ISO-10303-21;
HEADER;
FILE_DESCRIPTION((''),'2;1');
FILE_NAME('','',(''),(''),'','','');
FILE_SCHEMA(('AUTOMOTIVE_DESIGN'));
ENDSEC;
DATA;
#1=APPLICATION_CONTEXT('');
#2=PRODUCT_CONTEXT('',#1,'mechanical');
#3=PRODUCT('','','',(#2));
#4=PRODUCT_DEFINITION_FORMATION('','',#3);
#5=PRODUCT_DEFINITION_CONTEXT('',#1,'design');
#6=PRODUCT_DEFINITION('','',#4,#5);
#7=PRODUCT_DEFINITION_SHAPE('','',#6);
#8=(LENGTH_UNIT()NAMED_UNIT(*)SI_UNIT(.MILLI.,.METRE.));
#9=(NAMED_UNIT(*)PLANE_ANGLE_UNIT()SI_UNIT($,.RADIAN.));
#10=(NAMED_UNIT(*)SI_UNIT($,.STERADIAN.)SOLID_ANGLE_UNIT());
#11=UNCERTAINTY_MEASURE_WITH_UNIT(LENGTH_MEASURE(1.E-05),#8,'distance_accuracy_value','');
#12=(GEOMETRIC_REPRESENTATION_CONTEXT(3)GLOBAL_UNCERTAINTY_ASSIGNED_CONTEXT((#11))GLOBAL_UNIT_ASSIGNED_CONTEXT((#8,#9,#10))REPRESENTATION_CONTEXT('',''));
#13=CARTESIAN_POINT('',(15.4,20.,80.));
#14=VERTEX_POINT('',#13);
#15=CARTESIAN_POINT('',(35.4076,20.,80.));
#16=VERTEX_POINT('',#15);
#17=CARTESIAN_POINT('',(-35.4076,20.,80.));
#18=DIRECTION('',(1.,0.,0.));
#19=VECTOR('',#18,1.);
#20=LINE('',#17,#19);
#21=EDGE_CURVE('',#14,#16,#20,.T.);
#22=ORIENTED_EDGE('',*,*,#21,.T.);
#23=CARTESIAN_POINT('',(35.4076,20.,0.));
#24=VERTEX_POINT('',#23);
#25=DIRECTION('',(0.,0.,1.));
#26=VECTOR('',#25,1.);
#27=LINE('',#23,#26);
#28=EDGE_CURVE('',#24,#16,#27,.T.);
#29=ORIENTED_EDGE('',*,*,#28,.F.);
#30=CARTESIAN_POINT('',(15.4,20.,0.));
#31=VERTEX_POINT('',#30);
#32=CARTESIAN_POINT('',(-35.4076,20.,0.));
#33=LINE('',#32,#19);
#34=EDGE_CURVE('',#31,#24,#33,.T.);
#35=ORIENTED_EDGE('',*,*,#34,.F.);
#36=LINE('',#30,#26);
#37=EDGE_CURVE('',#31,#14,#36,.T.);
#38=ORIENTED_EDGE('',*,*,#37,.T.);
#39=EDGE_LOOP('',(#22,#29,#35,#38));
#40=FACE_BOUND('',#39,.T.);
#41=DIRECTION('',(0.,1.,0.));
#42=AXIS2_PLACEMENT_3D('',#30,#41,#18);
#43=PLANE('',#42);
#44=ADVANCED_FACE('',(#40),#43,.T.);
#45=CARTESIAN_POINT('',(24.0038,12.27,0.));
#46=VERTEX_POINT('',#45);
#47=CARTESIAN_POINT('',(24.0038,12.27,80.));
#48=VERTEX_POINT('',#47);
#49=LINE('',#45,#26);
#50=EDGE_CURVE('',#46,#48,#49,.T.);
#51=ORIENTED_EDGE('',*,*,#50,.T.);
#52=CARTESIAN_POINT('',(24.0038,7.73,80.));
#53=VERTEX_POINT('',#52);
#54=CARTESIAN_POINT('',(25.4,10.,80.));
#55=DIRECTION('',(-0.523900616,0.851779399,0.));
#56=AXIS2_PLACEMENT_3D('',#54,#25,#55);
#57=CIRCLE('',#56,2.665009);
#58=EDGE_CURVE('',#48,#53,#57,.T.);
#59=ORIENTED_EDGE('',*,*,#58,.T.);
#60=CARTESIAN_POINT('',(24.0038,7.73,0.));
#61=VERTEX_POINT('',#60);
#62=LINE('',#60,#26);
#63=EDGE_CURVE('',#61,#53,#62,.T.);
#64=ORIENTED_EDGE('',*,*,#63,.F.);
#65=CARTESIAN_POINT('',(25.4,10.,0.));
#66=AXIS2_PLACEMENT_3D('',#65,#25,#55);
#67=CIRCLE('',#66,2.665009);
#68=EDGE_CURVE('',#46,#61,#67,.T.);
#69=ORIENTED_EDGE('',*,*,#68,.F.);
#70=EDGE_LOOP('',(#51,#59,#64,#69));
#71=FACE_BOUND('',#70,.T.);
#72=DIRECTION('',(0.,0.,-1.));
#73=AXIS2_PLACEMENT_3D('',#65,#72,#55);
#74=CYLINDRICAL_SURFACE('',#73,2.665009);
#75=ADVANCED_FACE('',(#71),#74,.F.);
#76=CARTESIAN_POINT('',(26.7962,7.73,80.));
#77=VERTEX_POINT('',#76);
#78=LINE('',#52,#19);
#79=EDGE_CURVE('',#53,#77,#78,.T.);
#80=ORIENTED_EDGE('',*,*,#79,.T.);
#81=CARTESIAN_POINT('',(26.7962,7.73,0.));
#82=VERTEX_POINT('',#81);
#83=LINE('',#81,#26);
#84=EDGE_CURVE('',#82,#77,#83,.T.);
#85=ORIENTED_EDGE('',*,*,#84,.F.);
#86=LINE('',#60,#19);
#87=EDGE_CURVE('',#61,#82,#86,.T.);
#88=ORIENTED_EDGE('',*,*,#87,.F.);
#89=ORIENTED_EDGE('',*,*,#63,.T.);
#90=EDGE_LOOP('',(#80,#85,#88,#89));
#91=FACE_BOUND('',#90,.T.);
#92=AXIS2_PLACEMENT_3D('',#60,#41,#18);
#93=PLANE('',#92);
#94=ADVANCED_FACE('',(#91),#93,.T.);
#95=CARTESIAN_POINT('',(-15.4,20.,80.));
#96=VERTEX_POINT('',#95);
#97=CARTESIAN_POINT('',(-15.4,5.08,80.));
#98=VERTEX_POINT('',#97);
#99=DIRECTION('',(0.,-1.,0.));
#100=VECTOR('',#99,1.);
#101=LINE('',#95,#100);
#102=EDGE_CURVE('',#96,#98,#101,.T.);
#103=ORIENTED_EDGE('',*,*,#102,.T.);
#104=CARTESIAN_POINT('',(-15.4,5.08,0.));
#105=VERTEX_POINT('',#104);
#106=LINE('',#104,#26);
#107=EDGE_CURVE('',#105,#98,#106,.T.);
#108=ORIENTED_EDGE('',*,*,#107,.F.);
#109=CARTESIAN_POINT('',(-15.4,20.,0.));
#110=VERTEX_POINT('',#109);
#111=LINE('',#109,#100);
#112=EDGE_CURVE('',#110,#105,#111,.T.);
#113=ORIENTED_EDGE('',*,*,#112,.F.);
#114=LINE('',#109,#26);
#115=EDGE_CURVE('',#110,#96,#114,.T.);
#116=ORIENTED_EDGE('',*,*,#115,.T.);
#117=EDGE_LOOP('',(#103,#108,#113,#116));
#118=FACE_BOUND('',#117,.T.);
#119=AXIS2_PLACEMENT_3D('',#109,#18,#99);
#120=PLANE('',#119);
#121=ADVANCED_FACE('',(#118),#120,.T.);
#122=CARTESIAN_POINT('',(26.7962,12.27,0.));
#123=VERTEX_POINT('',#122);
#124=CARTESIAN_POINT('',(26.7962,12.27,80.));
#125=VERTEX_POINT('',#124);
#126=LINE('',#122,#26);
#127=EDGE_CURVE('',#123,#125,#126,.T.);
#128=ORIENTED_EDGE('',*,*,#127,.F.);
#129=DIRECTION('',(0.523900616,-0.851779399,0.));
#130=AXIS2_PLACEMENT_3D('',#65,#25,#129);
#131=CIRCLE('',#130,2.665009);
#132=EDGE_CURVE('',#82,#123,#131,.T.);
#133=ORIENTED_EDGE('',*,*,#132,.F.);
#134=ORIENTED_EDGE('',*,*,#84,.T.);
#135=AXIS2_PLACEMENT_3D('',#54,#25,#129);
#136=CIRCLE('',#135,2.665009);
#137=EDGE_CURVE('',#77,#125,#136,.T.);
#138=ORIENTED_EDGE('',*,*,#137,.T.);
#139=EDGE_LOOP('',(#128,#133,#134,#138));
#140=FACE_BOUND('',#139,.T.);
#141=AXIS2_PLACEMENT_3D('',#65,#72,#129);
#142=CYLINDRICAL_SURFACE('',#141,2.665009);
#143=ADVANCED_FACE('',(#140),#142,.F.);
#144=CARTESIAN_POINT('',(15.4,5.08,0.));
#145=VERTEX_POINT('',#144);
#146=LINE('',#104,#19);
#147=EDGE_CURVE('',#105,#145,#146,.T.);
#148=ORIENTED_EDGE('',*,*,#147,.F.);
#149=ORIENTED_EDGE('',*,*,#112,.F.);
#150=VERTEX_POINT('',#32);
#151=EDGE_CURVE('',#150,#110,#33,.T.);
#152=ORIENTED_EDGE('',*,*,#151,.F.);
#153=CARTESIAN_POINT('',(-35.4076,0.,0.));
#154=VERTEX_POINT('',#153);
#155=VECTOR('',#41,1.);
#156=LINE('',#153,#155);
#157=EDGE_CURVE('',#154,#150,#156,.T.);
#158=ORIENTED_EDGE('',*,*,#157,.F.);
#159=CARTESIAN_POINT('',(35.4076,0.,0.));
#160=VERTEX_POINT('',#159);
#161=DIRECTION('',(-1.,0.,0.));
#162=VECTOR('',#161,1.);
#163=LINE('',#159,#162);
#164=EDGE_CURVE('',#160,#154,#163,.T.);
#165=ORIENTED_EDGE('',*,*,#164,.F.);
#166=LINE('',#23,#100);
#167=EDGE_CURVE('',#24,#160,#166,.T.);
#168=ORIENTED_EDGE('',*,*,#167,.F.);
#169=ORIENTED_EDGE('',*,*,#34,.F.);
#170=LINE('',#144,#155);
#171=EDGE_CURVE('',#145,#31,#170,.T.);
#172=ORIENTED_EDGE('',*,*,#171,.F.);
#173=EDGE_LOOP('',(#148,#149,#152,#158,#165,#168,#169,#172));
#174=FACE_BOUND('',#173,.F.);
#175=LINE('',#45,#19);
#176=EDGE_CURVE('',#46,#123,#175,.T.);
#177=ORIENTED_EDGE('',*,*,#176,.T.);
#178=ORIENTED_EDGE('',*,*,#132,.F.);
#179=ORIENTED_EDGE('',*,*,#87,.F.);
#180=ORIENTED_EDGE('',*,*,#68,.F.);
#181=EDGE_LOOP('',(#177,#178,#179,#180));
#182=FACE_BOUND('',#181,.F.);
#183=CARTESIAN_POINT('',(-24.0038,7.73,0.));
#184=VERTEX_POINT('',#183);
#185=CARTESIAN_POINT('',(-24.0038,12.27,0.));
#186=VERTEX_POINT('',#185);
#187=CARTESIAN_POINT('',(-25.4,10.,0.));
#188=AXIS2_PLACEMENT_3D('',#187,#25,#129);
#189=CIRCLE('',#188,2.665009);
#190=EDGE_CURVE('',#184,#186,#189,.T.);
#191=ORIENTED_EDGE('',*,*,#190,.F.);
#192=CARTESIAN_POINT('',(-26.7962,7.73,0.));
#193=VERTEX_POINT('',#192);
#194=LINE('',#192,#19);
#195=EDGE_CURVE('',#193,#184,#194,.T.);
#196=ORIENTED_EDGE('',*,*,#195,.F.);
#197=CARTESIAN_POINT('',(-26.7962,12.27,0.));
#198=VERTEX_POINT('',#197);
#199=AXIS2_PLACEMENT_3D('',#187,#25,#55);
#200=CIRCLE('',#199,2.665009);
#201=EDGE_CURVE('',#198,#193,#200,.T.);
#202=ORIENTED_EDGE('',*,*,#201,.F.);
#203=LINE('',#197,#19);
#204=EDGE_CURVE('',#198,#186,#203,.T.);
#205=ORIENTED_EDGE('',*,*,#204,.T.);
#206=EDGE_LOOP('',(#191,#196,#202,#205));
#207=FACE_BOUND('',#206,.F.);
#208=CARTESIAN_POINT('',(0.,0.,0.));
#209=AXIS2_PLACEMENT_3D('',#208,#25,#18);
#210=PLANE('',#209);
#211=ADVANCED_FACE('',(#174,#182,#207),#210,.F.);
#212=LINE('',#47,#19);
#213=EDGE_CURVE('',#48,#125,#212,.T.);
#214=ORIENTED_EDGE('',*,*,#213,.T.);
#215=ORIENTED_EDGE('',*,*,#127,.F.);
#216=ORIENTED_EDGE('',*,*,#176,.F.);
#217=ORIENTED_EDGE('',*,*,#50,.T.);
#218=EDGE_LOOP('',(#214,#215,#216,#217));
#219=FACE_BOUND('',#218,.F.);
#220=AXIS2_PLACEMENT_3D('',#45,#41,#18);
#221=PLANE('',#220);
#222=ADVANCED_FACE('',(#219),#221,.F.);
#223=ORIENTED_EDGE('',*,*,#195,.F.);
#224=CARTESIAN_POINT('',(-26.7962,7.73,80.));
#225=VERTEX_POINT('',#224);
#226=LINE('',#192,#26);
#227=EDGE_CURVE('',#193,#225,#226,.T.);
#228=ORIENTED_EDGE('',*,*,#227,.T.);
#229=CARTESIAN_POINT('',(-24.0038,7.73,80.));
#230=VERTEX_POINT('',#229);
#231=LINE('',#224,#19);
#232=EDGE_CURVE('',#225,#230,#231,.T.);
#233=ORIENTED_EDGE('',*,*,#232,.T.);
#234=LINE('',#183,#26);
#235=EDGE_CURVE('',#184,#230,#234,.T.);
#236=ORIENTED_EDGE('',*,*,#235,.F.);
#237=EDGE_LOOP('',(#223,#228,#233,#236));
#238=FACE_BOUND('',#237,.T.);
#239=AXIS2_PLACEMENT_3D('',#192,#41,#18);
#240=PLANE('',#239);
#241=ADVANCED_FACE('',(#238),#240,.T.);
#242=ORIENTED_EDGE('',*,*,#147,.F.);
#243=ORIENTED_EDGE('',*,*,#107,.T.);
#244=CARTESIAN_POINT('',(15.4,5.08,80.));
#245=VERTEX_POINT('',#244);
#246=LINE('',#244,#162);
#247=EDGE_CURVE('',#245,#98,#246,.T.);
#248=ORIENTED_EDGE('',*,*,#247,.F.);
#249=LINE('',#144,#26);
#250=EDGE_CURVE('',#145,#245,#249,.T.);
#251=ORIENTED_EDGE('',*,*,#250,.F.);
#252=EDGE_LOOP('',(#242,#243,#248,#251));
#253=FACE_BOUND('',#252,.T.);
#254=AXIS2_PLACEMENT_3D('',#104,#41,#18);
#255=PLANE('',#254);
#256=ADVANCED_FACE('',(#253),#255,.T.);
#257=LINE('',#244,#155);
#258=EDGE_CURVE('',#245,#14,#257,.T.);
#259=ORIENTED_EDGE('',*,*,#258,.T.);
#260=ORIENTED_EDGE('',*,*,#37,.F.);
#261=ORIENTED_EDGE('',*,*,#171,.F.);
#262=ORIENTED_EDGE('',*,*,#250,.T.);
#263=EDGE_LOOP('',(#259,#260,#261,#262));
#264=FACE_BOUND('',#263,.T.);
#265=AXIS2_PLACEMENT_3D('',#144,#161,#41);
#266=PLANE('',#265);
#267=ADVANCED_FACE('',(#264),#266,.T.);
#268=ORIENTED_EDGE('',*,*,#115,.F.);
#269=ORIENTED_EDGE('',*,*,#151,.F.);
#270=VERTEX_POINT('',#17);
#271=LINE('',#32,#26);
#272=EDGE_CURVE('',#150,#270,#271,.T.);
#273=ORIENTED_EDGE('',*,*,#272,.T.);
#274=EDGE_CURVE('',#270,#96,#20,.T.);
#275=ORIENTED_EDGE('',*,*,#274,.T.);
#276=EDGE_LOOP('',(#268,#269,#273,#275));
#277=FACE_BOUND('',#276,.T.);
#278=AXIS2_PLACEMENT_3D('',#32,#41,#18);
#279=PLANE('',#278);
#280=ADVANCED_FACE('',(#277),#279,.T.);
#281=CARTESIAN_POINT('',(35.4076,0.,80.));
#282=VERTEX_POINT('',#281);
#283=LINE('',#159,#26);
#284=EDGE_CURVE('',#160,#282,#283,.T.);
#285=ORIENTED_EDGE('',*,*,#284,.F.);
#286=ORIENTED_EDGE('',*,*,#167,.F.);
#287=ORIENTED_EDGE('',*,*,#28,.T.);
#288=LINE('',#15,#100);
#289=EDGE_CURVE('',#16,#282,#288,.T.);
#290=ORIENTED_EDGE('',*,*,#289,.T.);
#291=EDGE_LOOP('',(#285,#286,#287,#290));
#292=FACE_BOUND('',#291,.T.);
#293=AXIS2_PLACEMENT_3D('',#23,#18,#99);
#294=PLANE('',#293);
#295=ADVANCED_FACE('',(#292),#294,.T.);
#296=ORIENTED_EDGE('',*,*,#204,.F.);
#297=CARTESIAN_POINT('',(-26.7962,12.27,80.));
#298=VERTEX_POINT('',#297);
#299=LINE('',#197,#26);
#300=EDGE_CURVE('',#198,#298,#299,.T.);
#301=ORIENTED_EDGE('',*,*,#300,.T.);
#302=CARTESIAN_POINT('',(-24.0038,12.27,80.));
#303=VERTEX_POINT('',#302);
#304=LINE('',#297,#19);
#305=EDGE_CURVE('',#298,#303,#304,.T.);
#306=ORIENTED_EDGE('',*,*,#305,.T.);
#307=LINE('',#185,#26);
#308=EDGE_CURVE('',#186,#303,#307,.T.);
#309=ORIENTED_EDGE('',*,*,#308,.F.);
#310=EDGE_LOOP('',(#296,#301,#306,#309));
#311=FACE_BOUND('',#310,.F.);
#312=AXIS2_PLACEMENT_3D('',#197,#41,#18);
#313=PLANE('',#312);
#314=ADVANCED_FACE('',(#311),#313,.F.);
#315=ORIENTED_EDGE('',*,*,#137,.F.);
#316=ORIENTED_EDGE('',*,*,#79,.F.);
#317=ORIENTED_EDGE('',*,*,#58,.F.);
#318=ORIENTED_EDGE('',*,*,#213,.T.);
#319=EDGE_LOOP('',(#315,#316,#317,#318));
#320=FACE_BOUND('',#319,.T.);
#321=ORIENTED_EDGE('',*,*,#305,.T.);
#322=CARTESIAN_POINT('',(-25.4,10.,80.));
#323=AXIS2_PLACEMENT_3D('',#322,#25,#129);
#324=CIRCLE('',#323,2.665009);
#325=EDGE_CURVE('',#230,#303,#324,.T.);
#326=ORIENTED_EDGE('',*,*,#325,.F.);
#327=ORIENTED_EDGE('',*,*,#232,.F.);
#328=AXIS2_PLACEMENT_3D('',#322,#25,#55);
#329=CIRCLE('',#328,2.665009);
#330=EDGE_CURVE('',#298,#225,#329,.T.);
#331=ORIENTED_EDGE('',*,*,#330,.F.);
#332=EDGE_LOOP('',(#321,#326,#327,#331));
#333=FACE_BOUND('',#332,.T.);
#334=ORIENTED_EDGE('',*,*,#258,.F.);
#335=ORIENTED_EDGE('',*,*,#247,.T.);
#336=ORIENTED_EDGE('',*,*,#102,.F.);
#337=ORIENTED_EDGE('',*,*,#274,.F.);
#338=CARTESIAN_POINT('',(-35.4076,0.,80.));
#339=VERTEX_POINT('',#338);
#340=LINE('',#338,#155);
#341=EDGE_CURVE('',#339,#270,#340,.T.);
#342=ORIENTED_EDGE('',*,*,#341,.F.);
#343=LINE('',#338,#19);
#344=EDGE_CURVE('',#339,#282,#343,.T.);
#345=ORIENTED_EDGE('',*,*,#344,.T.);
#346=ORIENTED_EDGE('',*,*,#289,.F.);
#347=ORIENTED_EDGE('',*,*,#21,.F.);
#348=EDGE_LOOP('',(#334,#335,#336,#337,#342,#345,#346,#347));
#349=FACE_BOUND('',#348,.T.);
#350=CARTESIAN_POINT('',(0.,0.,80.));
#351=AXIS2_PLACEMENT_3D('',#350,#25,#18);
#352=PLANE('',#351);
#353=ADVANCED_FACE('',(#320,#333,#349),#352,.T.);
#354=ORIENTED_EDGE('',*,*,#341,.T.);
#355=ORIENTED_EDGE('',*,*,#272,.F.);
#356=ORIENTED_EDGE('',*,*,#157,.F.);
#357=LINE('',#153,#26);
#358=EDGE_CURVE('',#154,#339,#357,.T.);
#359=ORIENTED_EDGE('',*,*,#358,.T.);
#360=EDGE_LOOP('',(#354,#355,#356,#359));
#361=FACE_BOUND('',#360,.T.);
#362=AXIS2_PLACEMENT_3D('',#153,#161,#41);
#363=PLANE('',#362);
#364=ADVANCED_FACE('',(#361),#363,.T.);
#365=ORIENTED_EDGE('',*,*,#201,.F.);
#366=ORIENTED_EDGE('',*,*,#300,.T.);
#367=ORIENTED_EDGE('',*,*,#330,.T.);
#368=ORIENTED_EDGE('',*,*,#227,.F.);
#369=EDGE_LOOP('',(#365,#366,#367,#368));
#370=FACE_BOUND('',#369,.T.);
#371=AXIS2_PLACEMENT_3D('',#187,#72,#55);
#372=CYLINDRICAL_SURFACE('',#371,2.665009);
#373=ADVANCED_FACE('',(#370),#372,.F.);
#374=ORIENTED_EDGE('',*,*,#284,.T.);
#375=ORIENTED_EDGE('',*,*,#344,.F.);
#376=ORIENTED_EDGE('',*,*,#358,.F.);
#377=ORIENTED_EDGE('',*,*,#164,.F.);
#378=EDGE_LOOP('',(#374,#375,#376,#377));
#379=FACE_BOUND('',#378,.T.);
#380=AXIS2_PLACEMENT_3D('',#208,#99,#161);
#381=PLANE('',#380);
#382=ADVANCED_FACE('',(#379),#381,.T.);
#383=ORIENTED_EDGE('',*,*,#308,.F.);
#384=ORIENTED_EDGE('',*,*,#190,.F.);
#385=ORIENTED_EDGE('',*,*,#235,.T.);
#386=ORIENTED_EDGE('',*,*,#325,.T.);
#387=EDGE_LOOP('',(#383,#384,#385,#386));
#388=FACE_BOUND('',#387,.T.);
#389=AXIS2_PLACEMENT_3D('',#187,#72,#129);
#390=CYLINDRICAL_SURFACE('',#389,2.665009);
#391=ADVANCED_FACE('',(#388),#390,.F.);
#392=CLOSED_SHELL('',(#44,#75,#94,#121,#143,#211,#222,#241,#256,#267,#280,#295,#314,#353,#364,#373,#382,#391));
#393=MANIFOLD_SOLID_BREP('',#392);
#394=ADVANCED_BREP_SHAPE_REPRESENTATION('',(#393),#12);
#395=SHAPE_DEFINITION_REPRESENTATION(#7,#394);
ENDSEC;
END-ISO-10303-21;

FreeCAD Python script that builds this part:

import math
import FreeCAD as App
import Part
import Sketcher
Q = App.Units.Quantity


def add_polygon(sketch, points):
    """Adds a closed chain of lines whose ends are joined by coincident constraints."""
    first, n = sketch.GeometryCount, len(points)
    for a, b in zip(points, points[1:] + points[:1]):
        sketch.addGeometry(Part.LineSegment(App.Vector(*a, 0), App.Vector(*b, 0)), False)
    for i in range(n):
        sketch.addConstraint(Sketcher.Constraint("Coincident", first + i, 2, first + (i + 1) % n, 1))

doc = App.newDocument("Part")
body = doc.addObject("PartDesign::Body", "Body")

sketch1 = body.newObject("Sketcher::SketchObject", "Sketch")
sketch1.AttachmentSupport = (doc.getObject("XY_Plane"), [""])
sketch1.MapMode = "FlatFace"
add_polygon(sketch1, [(-15.4, 20), (-35.4, 20), (-35.4, 0), (35.4, 0), (35.4, 20), (15.4, 20), (15.4, 5.1), (-15.4, 5.1)])
sketch1.addGeometry(Part.ArcOfCircle(Part.Circle(App.Vector(-25.4, 10, 0), App.Vector(0, 0, 1), 2.7), math.radians(122), math.radians(238)), False)
sketch1.addGeometry(Part.LineSegment(App.Vector(-26.8, 12.3, 0), App.Vector(-24, 12.3, 0)), False)
sketch1.addGeometry(Part.ArcOfCircle(Part.Circle(App.Vector(-25.4, 10, 0), App.Vector(0, 0, 1), 2.7), math.radians(-58), math.radians(58)), False)
sketch1.addGeometry(Part.LineSegment(App.Vector(-24, 7.7, 0), App.Vector(-26.8, 7.7, 0)), False)
sketch1.addGeometry(Part.LineSegment(App.Vector(24, 12.3, 0), App.Vector(26.8, 12.3, 0)), False)
sketch1.addGeometry(Part.ArcOfCircle(Part.Circle(App.Vector(25.4, 10, 0), App.Vector(0, 0, 1), 2.7), math.radians(-58), math.radians(58)), False)
sketch1.addGeometry(Part.LineSegment(App.Vector(26.8, 7.7, 0), App.Vector(24, 7.7, 0)), False)
sketch1.addGeometry(Part.ArcOfCircle(Part.Circle(App.Vector(25.4, 10, 0), App.Vector(0, 0, 1), 2.7), math.radians(122), math.radians(238)), False)
sketch1.addConstraint([
    Sketcher.Constraint("Coincident", 8, 1, 9, 1),
    Sketcher.Constraint("Coincident", 9, 2, 10, 2),
    Sketcher.Constraint("Coincident", 10, 1, 11, 1),
    Sketcher.Constraint("Coincident", 11, 2, 8, 2),
    Sketcher.Constraint("Coincident", 12, 2, 13, 2),
    Sketcher.Constraint("Coincident", 13, 1, 14, 1),
    Sketcher.Constraint("Coincident", 14, 2, 15, 2),
    Sketcher.Constraint("Coincident", 15, 1, 12, 1),
    Sketcher.Constraint("Horizontal", 0),
    Sketcher.Constraint("Vertical", 1),
    Sketcher.Constraint("Horizontal", 2),
    Sketcher.Constraint("Vertical", 3),
    Sketcher.Constraint("Horizontal", 4),
    Sketcher.Constraint("Vertical", 5),
    Sketcher.Constraint("Horizontal", 6),
    Sketcher.Constraint("Vertical", 7),
    Sketcher.Constraint("Horizontal", 9),
    Sketcher.Constraint("Horizontal", 11),
    Sketcher.Constraint("Horizontal", 12),
    Sketcher.Constraint("Horizontal", 14),
    Sketcher.Constraint("Coincident", 10, 3, 8, 3),
    Sketcher.Constraint("Coincident", 15, 3, 13, 3),
    Sketcher.Constraint("Equal", 8, 10),
    Sketcher.Constraint("Equal", 10, 13),
    Sketcher.Constraint("Equal", 13, 15),
    Sketcher.Constraint("Symmetric", 1, 2, 2, 2, -1, 1),
    Sketcher.Constraint("Symmetric", 8, 3, 13, 3, -2),
    Sketcher.Constraint("Symmetric", 4, 2, 7, 2, -2),
    Sketcher.Constraint("Horizontal", 9, 2, 12, 2),
    Sketcher.Constraint("Horizontal", 11, 2, 13, 1),
    Sketcher.Constraint("Vertical", 9, 2, 10, 1),
    Sketcher.Constraint("DistanceX", 8, 3, 13, 3, Q("2 in")),
    Sketcher.Constraint("DistanceY", -1, 1, 5, 2, Q("0.2 in")),
    Sketcher.Constraint("DistanceY", 1, 2, 1, 1, Q("0.7874 in")),
    Sketcher.Constraint("DistanceX", 0, 2, 8, 3, Q("0.394 in")),
    Sketcher.Constraint("DistanceY", -1, 1, 8, 3, Q("0.3937 in")),
    Sketcher.Constraint("DistanceX", 4, 2, 13, 3, Q("0.3937 in")),
    Sketcher.Constraint("Radius", 8, 2.665),
    Sketcher.Constraint("DistanceY", 10, 1, 9, 2, 4.54),
])
pad1 = body.newObject("PartDesign::Pad", "Pad")
pad1.Profile = sketch1
pad1.Length = Q("3.1496063 in")

doc.recompute()
